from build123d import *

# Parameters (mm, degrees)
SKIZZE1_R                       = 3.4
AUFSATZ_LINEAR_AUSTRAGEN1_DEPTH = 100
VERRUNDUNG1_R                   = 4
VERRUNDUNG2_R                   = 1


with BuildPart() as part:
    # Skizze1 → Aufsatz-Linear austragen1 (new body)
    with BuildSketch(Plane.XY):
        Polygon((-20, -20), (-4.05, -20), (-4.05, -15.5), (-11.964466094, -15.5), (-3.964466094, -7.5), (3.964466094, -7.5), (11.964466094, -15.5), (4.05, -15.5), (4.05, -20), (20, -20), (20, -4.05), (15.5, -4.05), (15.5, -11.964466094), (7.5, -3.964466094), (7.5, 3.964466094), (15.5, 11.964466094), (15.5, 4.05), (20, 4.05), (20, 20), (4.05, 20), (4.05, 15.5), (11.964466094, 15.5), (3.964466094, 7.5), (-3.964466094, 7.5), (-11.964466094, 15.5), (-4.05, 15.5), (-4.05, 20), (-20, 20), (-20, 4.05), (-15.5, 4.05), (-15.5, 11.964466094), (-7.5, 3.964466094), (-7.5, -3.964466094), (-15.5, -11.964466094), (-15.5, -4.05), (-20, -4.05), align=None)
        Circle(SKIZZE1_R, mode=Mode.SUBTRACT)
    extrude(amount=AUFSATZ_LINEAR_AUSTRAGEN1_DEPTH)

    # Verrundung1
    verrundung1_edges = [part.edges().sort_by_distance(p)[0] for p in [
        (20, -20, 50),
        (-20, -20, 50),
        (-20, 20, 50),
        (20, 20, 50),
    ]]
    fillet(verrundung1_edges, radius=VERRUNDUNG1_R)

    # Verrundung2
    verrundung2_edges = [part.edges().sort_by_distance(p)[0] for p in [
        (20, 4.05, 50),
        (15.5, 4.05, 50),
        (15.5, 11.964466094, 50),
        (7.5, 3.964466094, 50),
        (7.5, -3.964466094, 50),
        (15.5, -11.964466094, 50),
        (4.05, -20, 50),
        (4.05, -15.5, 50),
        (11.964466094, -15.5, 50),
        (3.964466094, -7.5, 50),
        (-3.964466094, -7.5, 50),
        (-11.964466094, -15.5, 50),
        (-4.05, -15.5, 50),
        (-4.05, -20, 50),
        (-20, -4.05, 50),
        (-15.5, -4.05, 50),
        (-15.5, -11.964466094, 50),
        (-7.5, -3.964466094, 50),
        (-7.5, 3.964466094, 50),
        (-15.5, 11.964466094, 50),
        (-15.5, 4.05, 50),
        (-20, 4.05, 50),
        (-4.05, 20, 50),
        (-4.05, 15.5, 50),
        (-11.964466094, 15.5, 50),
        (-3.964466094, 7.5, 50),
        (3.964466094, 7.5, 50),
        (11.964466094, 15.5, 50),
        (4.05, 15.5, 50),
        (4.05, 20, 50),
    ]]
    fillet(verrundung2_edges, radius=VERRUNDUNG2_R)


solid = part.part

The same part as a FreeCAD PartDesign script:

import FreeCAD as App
import Part
import Sketcher

V = App.Vector
Q = App.Units.Quantity


def edges_at(feature, points):
    """Names of the edges that pass closest to the given points."""
    edges = feature.Shape.Edges
    near = lambda p: min(range(len(edges)), key=lambda i: edges[i].distToShape(Part.Vertex(*p))[0])
    return sorted({f"Edge{near(p) + 1}" for p in points})


def add_polygon(sketch, points):
    """Adds a closed chain of lines whose ends are joined by coincident constraints."""
    first, n = sketch.GeometryCount, len(points)
    for a, b in zip(points, points[1:] + points[:1]):
        sketch.addGeometry(Part.LineSegment(App.Vector(*a, 0), App.Vector(*b, 0)), False)
    for i in range(n):
        sketch.addConstraint(Sketcher.Constraint("Coincident", first + i, 2, first + (i + 1) % n, 1))

doc = App.newDocument("Part")
body = doc.addObject("PartDesign::Body", "Body")

sketch1 = body.newObject("Sketcher::SketchObject", "Sketch")
sketch1.AttachmentSupport = (doc.getObject("XY_Plane"), [""])
sketch1.MapMode = "FlatFace"
add_polygon(sketch1, [(-20, -20), (-4, -20), (-4, -15.5), (-12, -15.5), (-4, -7.5), (4, -7.5), (12, -15.5), (4, -15.5), (4, -20), (20, -20), (20, -4), (15.5, -4), (15.5, -12), (7.5, -4), (7.5, 4), (15.5, 12), (15.5, 4), (20, 4), (20, 20), (4, 20), (4, 15.5), (12, 15.5), (4, 7.5), (-4, 7.5), (-12, 15.5), (-4, 15.5), (-4, 20), (-20, 20), (-20, 4), (-15.5, 4), (-15.5, 12), (-7.5, 4), (-7.5, -4), (-15.5, -12), (-15.5, -4), (-20, -4)])
sketch1.addGeometry(Part.Circle(V(0, 0, 0), V(0, 0, 1), 3.4), False)
sketch1.addConstraint(Sketcher.Constraint("Horizontal", 0))
sketch1.addConstraint(Sketcher.Constraint("Vertical", 1))
sketch1.addConstraint(Sketcher.Constraint("Horizontal", 2))
sketch1.addConstraint(Sketcher.Constraint("Horizontal", 4))
sketch1.addConstraint(Sketcher.Constraint("Horizontal", 6))
sketch1.addConstraint(Sketcher.Constraint("Vertical", 7))
sketch1.addConstraint(Sketcher.Constraint("Horizontal", 8))
sketch1.addConstraint(Sketcher.Constraint("Vertical", 9))
sketch1.addConstraint(Sketcher.Constraint("Horizontal", 10))
sketch1.addConstraint(Sketcher.Constraint("Vertical", 11))
sketch1.addConstraint(Sketcher.Constraint("Vertical", 13))
sketch1.addConstraint(Sketcher.Constraint("Vertical", 15))
sketch1.addConstraint(Sketcher.Constraint("Horizontal", 16))
sketch1.addConstraint(Sketcher.Constraint("Vertical", 17))
sketch1.addConstraint(Sketcher.Constraint("Horizontal", 18))
sketch1.addConstraint(Sketcher.Constraint("Vertical", 19))
sketch1.addConstraint(Sketcher.Constraint("Horizontal", 20))
sketch1.addConstraint(Sketcher.Constraint("Horizontal", 22))
sketch1.addConstraint(Sketcher.Constraint("Horizontal", 24))
sketch1.addConstraint(Sketcher.Constraint("Vertical", 25))
sketch1.addConstraint(Sketcher.Constraint("Horizontal", 26))
sketch1.addConstraint(Sketcher.Constraint("Vertical", 27))
sketch1.addConstraint(Sketcher.Constraint("Horizontal", 28))
sketch1.addConstraint(Sketcher.Constraint("Vertical", 29))
sketch1.addConstraint(Sketcher.Constraint("Vertical", 31))
sketch1.addConstraint(Sketcher.Constraint("Vertical", 33))
sketch1.addConstraint(Sketcher.Constraint("Horizontal", 34))
sketch1.addConstraint(Sketcher.Constraint("Vertical", 35))
sketch1.addConstraint(Sketcher.Constraint("Coincident", 36, 3, -1, 1))
sketch1.addConstraint(Sketcher.Constraint("Symmetric", 0, 2, 18, 2, -1, 1))
sketch1.addConstraint(Sketcher.Constraint("Symmetric", 2, 2, 20, 2, -1, 1))
sketch1.addConstraint(Sketcher.Constraint("Symmetric", 3, 2, 21, 2, -1, 1))
sketch1.addConstraint(Sketcher.Constraint("Symmetric", 5, 2, 23, 2, -1, 1))
sketch1.addConstraint(Sketcher.Constraint("Symmetric", 7, 2, 25, 2, -1, 1))
sketch1.addConstraint(Sketcher.Constraint("Symmetric", 9, 2, 27, 2, -1, 1))
sketch1.addConstraint(Sketcher.Constraint("Symmetric", 11, 2, 29, 2, -1, 1))
sketch1.addConstraint(Sketcher.Constraint("Symmetric", 12, 2, 30, 2, -1, 1))
sketch1.addConstraint(Sketcher.Constraint("Symmetric", 14, 2, 32, 2, -1, 1))
sketch1.addConstraint(Sketcher.Constraint("Symmetric", 16, 2, 34, 2, -1, 1))
sketch1.addConstraint(Sketcher.Constraint("Symmetric", 2, 2, 5, 2, -2))
sketch1.addConstraint(Sketcher.Constraint("Symmetric", 0, 2, 7, 2, -2))
sketch1.addConstraint(Sketcher.Constraint("Symmetric", 16, 2, 27, 2, -2))
sketch1.addConstraint(Sketcher.Constraint("Symmetric", 14, 2, 29, 2, -2))
sketch1.addConstraint(Sketcher.Constraint("Perpendicular", 3, 5))
sketch1.addConstraint(Sketcher.Constraint("Parallel", 5, 12))
sketch1.addConstraint(Sketcher.Constraint("Perpendicular", 12, 14))
sketch1.addConstraint(Sketcher.Constraint("Perpendicular", 21, 23))
sketch1.addConstraint(Sketcher.Constraint("Perpendicular", 30, 32))
sketch1.addConstraint(Sketcher.Constraint("Horizontal", 13, 2, 30, 2))
sketch1.addConstraint(Sketcher.Constraint("Equal", 34, 1))
sketch1.addConstraint(Sketcher.Constraint("Equal", 26, 9))
sketch1.addConstraint(Sketcher.Constraint("Equal", 24, 11))
sketch1.addConstraint(Sketcher.Constraint("Equal", 22, 13))
sketch1.addConstraint(Sketcher.Constraint("Equal", 5, 12))
sketch1.addConstraint(Sketcher.Constraint("Diameter", 36, Q("6.8 mm")))
sketch1.addConstraint(Sketcher.Constraint("DistanceX", 10, 2, 10, 1, Q("4.5 mm")))
sketch1.addConstraint(Sketcher.Constraint("DistanceY", 0, 2, -1, 1, Q("20 mm")))
sketch1.addConstraint(Sketcher.Constraint("DistanceY", 1, 2, 3, 2, Q("8 mm")))
sketch1.addConstraint(Sketcher.Constraint("DistanceX", 0, 1, 0, 2, Q("15.95 mm")))
sketch1.addConstraint(Sketcher.Constraint("DistanceX", 2, 2, 2, 1, Q("7.914466 mm")))
pad1 = body.newObject("PartDesign::Pad", "Pad")
pad1.Profile = sketch1
pad1.Length = 100
doc.recompute()

fillet = body.newObject("PartDesign::Fillet", "Fillet")
fillet.Base = (pad1, edges_at(pad1, [
    (20, -20, 50),
    (-20, -20, 50),
    (-20, 20, 50),
    (20, 20, 50),
]))
fillet.Radius = 4
doc.recompute()

fillet2 = body.newObject("PartDesign::Fillet", "Fillet001")
fillet2.Base = (fillet, edges_at(fillet, [
    (20, 4.05, 50),
    (15.5, 4.05, 50),
    (15.5, 11.964, 50),
    (7.5, 3.964, 50),
    (7.5, -3.964, 50),
    (15.5, -11.964, 50),
    (4.05, -20, 50),
    (4.05, -15.5, 50),
    (11.964, -15.5, 50),
    (3.964, -7.5, 50),
    (-3.964, -7.5, 50),
    (-11.964, -15.5, 50),
    (-4.05, -15.5, 50),
    (-4.05, -20, 50),
    (-20, -4.05, 50),
    (-15.5, -4.05, 50),
    (-15.5, -11.964, 50),
    (-7.5, -3.964, 50),
    (-7.5, 3.964, 50),
    (-15.5, 11.964, 50),
    (-15.5, 4.05, 50),
    (-20, 4.05, 50),
    (-4.05, 20, 50),
    (-4.05, 15.5, 50),
    (-11.964, 15.5, 50),
    (-3.964, 7.5, 50),
    (3.964, 7.5, 50),
    (11.964, 15.5, 50),
    (4.05, 15.5, 50),
    (4.05, 20, 50),
]))
fillet2.Radius = 1

doc.recompute()
